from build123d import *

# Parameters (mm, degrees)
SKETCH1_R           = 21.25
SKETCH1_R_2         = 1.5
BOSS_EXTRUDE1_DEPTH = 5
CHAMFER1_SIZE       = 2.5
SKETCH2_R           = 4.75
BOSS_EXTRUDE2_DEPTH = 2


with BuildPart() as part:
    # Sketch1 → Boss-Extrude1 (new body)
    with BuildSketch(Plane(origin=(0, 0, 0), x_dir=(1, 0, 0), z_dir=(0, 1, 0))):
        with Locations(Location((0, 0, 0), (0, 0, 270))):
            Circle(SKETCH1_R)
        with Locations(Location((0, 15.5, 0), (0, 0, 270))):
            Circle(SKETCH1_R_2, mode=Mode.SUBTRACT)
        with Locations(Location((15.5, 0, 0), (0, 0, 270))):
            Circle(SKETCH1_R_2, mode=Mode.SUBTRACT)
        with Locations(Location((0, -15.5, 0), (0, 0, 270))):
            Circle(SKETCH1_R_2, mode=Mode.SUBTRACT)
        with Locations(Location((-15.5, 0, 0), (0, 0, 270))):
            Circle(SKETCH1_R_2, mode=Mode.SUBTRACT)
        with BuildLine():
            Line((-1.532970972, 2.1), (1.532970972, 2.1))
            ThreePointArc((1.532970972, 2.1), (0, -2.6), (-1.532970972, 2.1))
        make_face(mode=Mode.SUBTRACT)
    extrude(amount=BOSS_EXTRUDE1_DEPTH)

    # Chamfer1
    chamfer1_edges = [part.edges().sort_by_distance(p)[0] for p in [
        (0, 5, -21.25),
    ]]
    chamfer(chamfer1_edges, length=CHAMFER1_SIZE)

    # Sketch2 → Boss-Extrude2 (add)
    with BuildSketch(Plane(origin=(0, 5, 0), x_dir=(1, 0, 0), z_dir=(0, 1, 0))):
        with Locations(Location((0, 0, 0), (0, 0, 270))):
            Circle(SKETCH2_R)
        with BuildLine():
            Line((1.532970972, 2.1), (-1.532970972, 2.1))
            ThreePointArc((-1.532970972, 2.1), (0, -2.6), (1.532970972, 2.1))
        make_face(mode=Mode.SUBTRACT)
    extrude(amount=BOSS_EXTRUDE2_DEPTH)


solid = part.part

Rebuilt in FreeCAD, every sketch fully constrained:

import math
import FreeCAD as App
import Part
import Sketcher
from FreeCAD import Vector
Q = App.Units.Quantity


def edges_at(feature, points):
    """Names of the edges that pass closest to the given points."""
    edges = feature.Shape.Edges
    near = lambda p: min(range(len(edges)), key=lambda i: edges[i].distToShape(Part.Vertex(*p))[0])
    return sorted({f"Edge{near(p) + 1}" for p in points})

doc = App.newDocument("Part")
body = doc.addObject("PartDesign::Body", "Body")

sketch1 = doc.addObject("Sketcher::SketchObject", "Sketch")
body.addObject(sketch1)
sketch1.AttachmentSupport = (doc.XZ_Plane, [""])
sketch1.MapMode = "FlatFace"
sketch1.addGeometry(Part.Circle(Vector(0, 0, 0), Vector(0, 0, 1), 21.2), False)
sketch1.addGeometry(Part.Circle(Vector(0, -15.5, 0), Vector(0, 0, 1), 1.5), False)
sketch1.addGeometry(Part.Circle(Vector(-15.5, 0, 0), Vector(0, 0, 1), 1.5), False)
sketch1.addGeometry(Part.Circle(Vector(15.5, 0, 0), Vector(0, 0, 1), 1.5), False)
sketch1.addGeometry(Part.ArcOfCircle(Part.Circle(Vector(0, 0, 0), Vector(0, 0, 1), 2.6), math.radians(-54), math.radians(234)), False)
sketch1.addGeometry(Part.LineSegment(Vector(-1.5, -2.1, 0), Vector(1.5, -2.1, 0)), False)
sketch1.addGeometry(Part.Circle(Vector(0, 15.5, 0), Vector(0, 0, 1), 1.5), False)
sketch1.addConstraint(Sketcher.Constraint("Coincident", 4, 1, 5, 2))
sketch1.addConstraint(Sketcher.Constraint("Coincident", 5, 1, 4, 2))
sketch1.addConstraint(Sketcher.Constraint("Horizontal", 5))
sketch1.addConstraint(Sketcher.Constraint("Coincident", 0, 3, -1, 1))
sketch1.addConstraint(Sketcher.Constraint("Coincident", 4, 3, -1, 1))
sketch1.addConstraint(Sketcher.Constraint("Equal", 1, 2))
sketch1.addConstraint(Sketcher.Constraint("Equal", 2, 3))
sketch1.addConstraint(Sketcher.Constraint("Equal", 3, 6))
sketch1.addConstraint(Sketcher.Constraint("Symmetric", 2, 3, 3, 3, -1, 1))
sketch1.addConstraint(Sketcher.Constraint("Symmetric", 1, 3, 6, 3, -1, 1))
sketch1.addConstraint(Sketcher.Constraint("PointOnObject", 1, 3, -2))
sketch1.addConstraint(Sketcher.Constraint("PointOnObject", 2, 3, -1))
sketch1.addConstraint(Sketcher.Constraint("Diameter", 1, Q("3 mm")))
sketch1.addConstraint(Sketcher.Constraint("Diameter", 0, Q("42.5 mm")))
sketch1.addConstraint(Sketcher.Constraint("Radius", 4, Q("2.6 mm")))
sketch1.addConstraint(Sketcher.Constraint("DistanceX", 2, 3, 3, 3, Q("31 mm")))
sketch1.addConstraint(Sketcher.Constraint("DistanceY", 1, 3, 6, 3, Q("31 mm")))
sketch1.addConstraint(Sketcher.Constraint("DistanceY", 4, 1, -1, 1, Q("2.1 mm")))
pad1 = doc.addObject("PartDesign::Pad", "Pad")
body.addObject(pad1)
pad1.Profile = sketch1
pad1.Length = 5
pad1.Reversed = True
doc.recompute()

chamfer = doc.addObject("PartDesign::Chamfer", "Chamfer")
body.addObject(chamfer)
chamfer.Base = (pad1, edges_at(pad1, [(0, 5, -21.25)]))
chamfer.Size = 2.5

sketch2 = doc.addObject("Sketcher::SketchObject", "Sketch001")
body.addObject(sketch2)
sketch2.AttachmentSupport = (doc.XZ_Plane, [""])
sketch2.MapMode = "FlatFace"
sketch2.AttachmentOffset = App.Placement(Vector(0, 0, -5), App.Rotation())
sketch2.addGeometry(Part.Circle(Vector(0, 0, 0), Vector(0, 0, 1), 4.8), False)
sketch2.addGeometry(Part.LineSegment(Vector(-1.5, -2.1, 0), Vector(1.5, -2.1, 0)), False)
sketch2.addGeometry(Part.ArcOfCircle(Part.Circle(Vector(0, 0, 0), Vector(0, 0, 1), 2.6), math.radians(-54), math.radians(234)), False)
sketch2.addConstraint(Sketcher.Constraint("Coincident", 1, 1, 2, 2))
sketch2.addConstraint(Sketcher.Constraint("Coincident", 2, 1, 1, 2))
sketch2.addConstraint(Sketcher.Constraint("Horizontal", 1))
sketch2.addConstraint(Sketcher.Constraint("Coincident", 0, 3, -1, 1))
sketch2.addConstraint(Sketcher.Constraint("Coincident", 2, 3, -1, 1))
sketch2.addConstraint(Sketcher.Constraint("Diameter", 0, Q("9.5 mm")))
sketch2.addConstraint(Sketcher.Constraint("Radius", 2, Q("2.6 mm")))
sketch2.addConstraint(Sketcher.Constraint("DistanceY", 1, 1, -1, 1, Q("2.1 mm")))
pad2 = doc.addObject("PartDesign::Pad", "Pad001")
body.addObject(pad2)
pad2.Profile = sketch2
pad2.Length = 2
pad2.Reversed = True

doc.recompute()
